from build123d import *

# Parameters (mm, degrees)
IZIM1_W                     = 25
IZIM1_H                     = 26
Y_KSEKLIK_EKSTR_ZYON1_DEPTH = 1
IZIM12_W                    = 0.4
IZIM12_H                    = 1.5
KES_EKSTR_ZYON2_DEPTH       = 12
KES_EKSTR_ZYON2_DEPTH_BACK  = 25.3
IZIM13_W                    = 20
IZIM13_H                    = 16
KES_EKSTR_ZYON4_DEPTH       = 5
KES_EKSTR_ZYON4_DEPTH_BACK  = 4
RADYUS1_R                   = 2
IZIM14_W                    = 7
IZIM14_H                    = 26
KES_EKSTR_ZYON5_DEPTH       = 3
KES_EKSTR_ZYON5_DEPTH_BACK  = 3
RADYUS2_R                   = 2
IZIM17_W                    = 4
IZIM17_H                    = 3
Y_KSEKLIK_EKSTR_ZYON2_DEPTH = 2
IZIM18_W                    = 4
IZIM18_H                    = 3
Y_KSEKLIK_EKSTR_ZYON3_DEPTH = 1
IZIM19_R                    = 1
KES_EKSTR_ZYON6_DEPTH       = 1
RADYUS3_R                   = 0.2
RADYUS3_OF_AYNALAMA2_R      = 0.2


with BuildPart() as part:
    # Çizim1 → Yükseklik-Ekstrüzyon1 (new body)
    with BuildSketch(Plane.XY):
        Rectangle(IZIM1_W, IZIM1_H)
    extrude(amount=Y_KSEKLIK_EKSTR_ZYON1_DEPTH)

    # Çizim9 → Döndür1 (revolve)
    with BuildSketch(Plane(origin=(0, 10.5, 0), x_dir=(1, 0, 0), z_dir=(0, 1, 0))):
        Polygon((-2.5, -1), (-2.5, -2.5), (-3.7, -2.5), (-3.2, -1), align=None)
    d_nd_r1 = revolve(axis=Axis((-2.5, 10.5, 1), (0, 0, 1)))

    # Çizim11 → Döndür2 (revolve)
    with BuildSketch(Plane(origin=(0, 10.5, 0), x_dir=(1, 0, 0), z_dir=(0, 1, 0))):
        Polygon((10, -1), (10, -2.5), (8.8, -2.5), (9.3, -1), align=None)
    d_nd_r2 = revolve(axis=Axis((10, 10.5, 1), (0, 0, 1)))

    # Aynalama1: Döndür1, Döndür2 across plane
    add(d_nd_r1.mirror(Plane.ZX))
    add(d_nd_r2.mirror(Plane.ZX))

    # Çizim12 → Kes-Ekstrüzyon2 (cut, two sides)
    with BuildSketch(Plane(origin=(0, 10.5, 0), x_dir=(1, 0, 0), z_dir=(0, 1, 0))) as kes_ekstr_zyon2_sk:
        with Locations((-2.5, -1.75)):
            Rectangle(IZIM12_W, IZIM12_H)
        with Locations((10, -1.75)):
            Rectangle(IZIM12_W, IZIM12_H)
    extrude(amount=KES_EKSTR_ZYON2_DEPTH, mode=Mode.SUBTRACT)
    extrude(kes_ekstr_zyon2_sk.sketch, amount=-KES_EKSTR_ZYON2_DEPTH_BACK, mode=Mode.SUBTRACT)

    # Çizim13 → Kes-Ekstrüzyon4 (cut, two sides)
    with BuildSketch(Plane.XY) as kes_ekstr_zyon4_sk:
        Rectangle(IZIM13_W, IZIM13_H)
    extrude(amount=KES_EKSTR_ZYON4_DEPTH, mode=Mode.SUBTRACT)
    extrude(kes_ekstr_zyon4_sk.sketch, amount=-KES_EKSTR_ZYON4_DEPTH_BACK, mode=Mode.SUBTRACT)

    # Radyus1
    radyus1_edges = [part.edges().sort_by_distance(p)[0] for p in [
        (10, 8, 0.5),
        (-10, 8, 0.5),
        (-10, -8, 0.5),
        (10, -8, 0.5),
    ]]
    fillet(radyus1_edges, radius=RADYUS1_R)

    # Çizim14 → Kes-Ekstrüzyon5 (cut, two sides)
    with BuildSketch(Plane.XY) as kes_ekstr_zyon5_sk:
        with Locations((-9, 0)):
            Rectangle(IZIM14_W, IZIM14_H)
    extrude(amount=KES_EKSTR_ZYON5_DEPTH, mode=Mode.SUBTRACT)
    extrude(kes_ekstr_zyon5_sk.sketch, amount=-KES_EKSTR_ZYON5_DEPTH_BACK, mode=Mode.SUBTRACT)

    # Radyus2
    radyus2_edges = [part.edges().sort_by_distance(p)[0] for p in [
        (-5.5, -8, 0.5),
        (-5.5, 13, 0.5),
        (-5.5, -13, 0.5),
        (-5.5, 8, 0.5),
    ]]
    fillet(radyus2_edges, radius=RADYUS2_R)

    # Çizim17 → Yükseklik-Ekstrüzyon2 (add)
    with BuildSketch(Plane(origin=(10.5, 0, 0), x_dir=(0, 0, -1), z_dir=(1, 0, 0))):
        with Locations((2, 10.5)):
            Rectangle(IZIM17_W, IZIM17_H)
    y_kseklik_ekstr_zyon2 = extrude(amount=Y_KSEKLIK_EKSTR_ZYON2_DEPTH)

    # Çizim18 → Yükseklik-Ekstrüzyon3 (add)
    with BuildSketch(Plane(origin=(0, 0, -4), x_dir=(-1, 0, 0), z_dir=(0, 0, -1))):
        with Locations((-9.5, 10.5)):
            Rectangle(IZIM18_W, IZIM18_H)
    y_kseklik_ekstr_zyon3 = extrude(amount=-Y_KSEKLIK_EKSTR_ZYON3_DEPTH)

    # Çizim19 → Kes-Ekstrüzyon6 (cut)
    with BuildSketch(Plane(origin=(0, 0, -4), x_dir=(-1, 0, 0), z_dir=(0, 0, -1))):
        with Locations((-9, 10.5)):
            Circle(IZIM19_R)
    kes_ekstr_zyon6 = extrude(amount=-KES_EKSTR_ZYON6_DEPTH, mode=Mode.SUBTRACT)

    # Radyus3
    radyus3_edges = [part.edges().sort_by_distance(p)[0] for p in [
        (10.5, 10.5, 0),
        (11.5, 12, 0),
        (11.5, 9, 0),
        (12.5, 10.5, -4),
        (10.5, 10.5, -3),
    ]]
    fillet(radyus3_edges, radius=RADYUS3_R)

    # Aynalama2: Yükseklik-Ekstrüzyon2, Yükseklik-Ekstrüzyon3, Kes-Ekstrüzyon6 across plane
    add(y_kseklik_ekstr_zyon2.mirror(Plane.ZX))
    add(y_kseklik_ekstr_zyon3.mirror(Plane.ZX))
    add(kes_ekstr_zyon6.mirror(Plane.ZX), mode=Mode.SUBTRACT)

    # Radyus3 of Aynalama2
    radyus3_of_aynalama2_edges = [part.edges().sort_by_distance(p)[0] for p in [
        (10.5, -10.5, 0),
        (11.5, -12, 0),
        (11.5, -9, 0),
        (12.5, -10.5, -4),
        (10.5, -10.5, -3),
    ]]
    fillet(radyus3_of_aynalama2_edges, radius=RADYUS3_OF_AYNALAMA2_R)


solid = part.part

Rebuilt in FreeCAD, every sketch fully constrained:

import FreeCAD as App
import Part
import Sketcher


def edges_at(feature, points):
    """Names of the edges that pass closest to the given points."""
    edges = feature.Shape.Edges
    near = lambda p: min(range(len(edges)), key=lambda i: edges[i].distToShape(Part.Vertex(*p))[0])
    return sorted({f"Edge{near(p) + 1}" for p in points})


def add_polygon(sketch, points):
    """Adds a closed chain of lines whose ends are joined by coincident constraints."""
    first, n = sketch.GeometryCount, len(points)
    for a, b in zip(points, points[1:] + points[:1]):
        sketch.addGeometry(Part.LineSegment(App.Vector(*a, 0), App.Vector(*b, 0)), False)
    for i in range(n):
        sketch.addConstraint(Sketcher.Constraint("Coincident", first + i, 2, first + (i + 1) % n, 1))

doc = App.newDocument("Part")
body = doc.addObject("PartDesign::Body", "Body")

sketch1 = doc.addObject("Sketcher::SketchObject", "Sketch")
body.addObject(sketch1)
sketch1.AttachmentSupport = (doc.XY_Plane, [""])
sketch1.MapMode = "FlatFace"
add_polygon(sketch1, [(-12.5, 13), (-12.5, -13), (12.5, -13), (12.5, 13)])
sketch1.addConstraint([
    Sketcher.Constraint("Vertical", 0),
    Sketcher.Constraint("Horizontal", 1),
    Sketcher.Constraint("Vertical", 2),
    Sketcher.Constraint("Horizontal", 3),
    Sketcher.Constraint("Symmetric", 0, 2, 2, 2, -1, 1),
    Sketcher.Constraint("DistanceX", 1, 1, 1, 2, 25.0),
    Sketcher.Constraint("DistanceY", 0, 2, 0, 1, 26.0),
])
pad1 = doc.addObject("PartDesign::Pad", "Pad")
body.addObject(pad1)
pad1.Profile = sketch1
pad1.Length = 1

sketch2 = doc.addObject("Sketcher::SketchObject", "Sketch001")
body.addObject(sketch2)
sketch2.AttachmentSupport = (doc.XZ_Plane, [""])
sketch2.MapMode = "FlatFace"
sketch2.AttachmentOffset = App.Placement(App.Vector(0, 0, -10.5), App.Rotation())
add_polygon(sketch2, [(-2.5, 2.5), (-2.5, 1), (-3.2, 1), (-3.7, 2.5)])
sketch2.addGeometry(Part.LineSegment(App.Vector(-2.5, 1, 0), App.Vector(-2.5, 2.5, 0)), True)
sketch2.addConstraint([
    Sketcher.Constraint("Vertical", 0),
    Sketcher.Constraint("Horizontal", 1),
    Sketcher.Constraint("Horizontal", 3),
    Sketcher.Constraint("Vertical", 4),
    Sketcher.Constraint("Coincident", 4, 1, 0, 2),
    Sketcher.Constraint("Horizontal", 2, 2, 4, 2),
    Sketcher.Constraint("DistanceX", 1, 2, 1, 1, 0.7),
    Sketcher.Constraint("DistanceX", 3, 1, 3, 2, 1.2),
    Sketcher.Constraint("DistanceY", 0, 2, 0, 1, 1.5),
    Sketcher.Constraint("DistanceY", -1, 1, 0, 2, 1.0),
    Sketcher.Constraint("DistanceX", 0, 2, -1, 1, 2.5),
])
revolution = doc.addObject("PartDesign::Revolution", "Revolution")
body.addObject(revolution)
revolution.Profile = sketch2
revolution.ReferenceAxis = (sketch2, ["Axis0"])
revolution.Angle = 360

sketch3 = doc.addObject("Sketcher::SketchObject", "Sketch002")
body.addObject(sketch3)
sketch3.AttachmentSupport = (doc.XZ_Plane, [""])
sketch3.MapMode = "FlatFace"
sketch3.AttachmentOffset = App.Placement(App.Vector(0, 0, -10.5), App.Rotation())
add_polygon(sketch3, [(10, 2.5), (10, 1), (9.3, 1), (8.8, 2.5)])
sketch3.addGeometry(Part.LineSegment(App.Vector(10, 1, 0), App.Vector(10, 2.5, 0)), True)
sketch3.addConstraint([
    Sketcher.Constraint("Vertical", 0),
    Sketcher.Constraint("Horizontal", 1),
    Sketcher.Constraint("Horizontal", 3),
    Sketcher.Constraint("Vertical", 4),
    Sketcher.Constraint("Coincident", 4, 1, 0, 2),
    Sketcher.Constraint("Horizontal", 2, 2, 4, 2),
    Sketcher.Constraint("DistanceX", 1, 2, 1, 1, 0.7),
    Sketcher.Constraint("DistanceX", 3, 1, 3, 2, 1.2),
    Sketcher.Constraint("DistanceY", 0, 2, 0, 1, 1.5),
    Sketcher.Constraint("DistanceX", -1, 1, 0, 2, 10.0),
    Sketcher.Constraint("DistanceY", -1, 1, 0, 2, 1.0),
])
revolution2 = doc.addObject("PartDesign::Revolution", "Revolution001")
body.addObject(revolution2)
revolution2.Profile = sketch3
revolution2.ReferenceAxis = (sketch3, ["Axis0"])
revolution2.Angle = 360
doc.recompute()

mirrored = doc.addObject("PartDesign::Mirrored", "Mirrored")
body.addObject(mirrored)
mirrored.Originals = [revolution, revolution2]
mirrored.MirrorPlane = (doc.XZ_Plane, [""])
body.Tip = mirrored

sketch4 = doc.addObject("Sketcher::SketchObject", "Sketch003")
body.addObject(sketch4)
sketch4.AttachmentSupport = (doc.XZ_Plane, [""])
sketch4.MapMode = "FlatFace"
sketch4.AttachmentOffset = App.Placement(App.Vector(0, 0, -10.5), App.Rotation())
add_polygon(sketch4, [(-2.7, 1), (-2.7, 2.5), (-2.3, 2.5), (-2.3, 1)])
add_polygon(sketch4, [(9.8, 1), (9.8, 2.5), (10.2, 2.5), (10.2, 1)])
sketch4.addConstraint([
    Sketcher.Constraint("Vertical", 0),
    Sketcher.Constraint("Horizontal", 1),
    Sketcher.Constraint("Vertical", 2),
    Sketcher.Constraint("Horizontal", 3),
    Sketcher.Constraint("Vertical", 4),
    Sketcher.Constraint("Horizontal", 5),
    Sketcher.Constraint("Vertical", 6),
    Sketcher.Constraint("Horizontal", 7),
    Sketcher.Constraint("Horizontal", 1, 2, 4, 2),
    Sketcher.Constraint("Horizontal", 3, 2, 6, 2),
    Sketcher.Constraint("Equal", 3, 5),
    Sketcher.Constraint("DistanceX", 1, 1, 1, 2, 0.4),
    Sketcher.Constraint("DistanceY", 0, 1, 0, 2, 1.5),
    Sketcher.Constraint("DistanceY", -1, 1, 2, 2, 1.0),
    Sketcher.Constraint("DistanceX", 0, 2, -1, 1, 2.7),
    Sketcher.Constraint("DistanceX", -1, 1, 4, 2, 9.8),
])
pocket1 = doc.addObject("PartDesign::Pocket", "Pocket")
body.addObject(pocket1)
pocket1.Profile = sketch4
pocket1.Type = "ThroughAll"
pocket1.Midplane = True

sketch5 = doc.addObject("Sketcher::SketchObject", "Sketch004")
body.addObject(sketch5)
sketch5.AttachmentSupport = (doc.XY_Plane, [""])
sketch5.MapMode = "FlatFace"
add_polygon(sketch5, [(-10, 8), (-10, -8), (10, -8), (10, 8)])
sketch5.addConstraint([
    Sketcher.Constraint("Vertical", 0),
    Sketcher.Constraint("Horizontal", 1),
    Sketcher.Constraint("Vertical", 2),
    Sketcher.Constraint("Horizontal", 3),
    Sketcher.Constraint("Symmetric", 0, 2, 2, 2, -1, 1),
    Sketcher.Constraint("DistanceX", 1, 1, 1, 2, 20.0),
    Sketcher.Constraint("DistanceY", 0, 2, 0, 1, 16.0),
])
pocket2 = doc.addObject("PartDesign::Pocket", "Pocket001")
body.addObject(pocket2)
pocket2.Profile = sketch5
pocket2.Type = "ThroughAll"
pocket2.Midplane = True
doc.recompute()

fillet = doc.addObject("PartDesign::Fillet", "Fillet")
body.addObject(fillet)
fillet.Base = (pocket2, edges_at(pocket2, [
    (10, 8, 0.5),
    (-10, 8, 0.5),
    (-10, -8, 0.5),
    (10, -8, 0.5),
]))
fillet.Radius = 2

sketch6 = doc.addObject("Sketcher::SketchObject", "Sketch005")
body.addObject(sketch6)
sketch6.AttachmentSupport = (doc.XY_Plane, [""])
sketch6.MapMode = "FlatFace"
add_polygon(sketch6, [(-12.5, 13), (-12.5, -13), (-5.5, -13), (-5.5, 13)])
sketch6.addConstraint([
    Sketcher.Constraint("Vertical", 0),
    Sketcher.Constraint("Horizontal", 1),
    Sketcher.Constraint("Vertical", 2),
    Sketcher.Constraint("Horizontal", 3),
    Sketcher.Constraint("DistanceX", 1, 1, 1, 2, 7.0),
    Sketcher.Constraint("DistanceY", 0, 2, 0, 1, 26.0),
    Sketcher.Constraint("DistanceY", 0, 2, -1, 1, 13.0),
    Sketcher.Constraint("DistanceX", 0, 2, -1, 1, 12.5),
])
pocket3 = doc.addObject("PartDesign::Pocket", "Pocket002")
body.addObject(pocket3)
pocket3.Profile = sketch6
pocket3.Type = "ThroughAll"
pocket3.Midplane = True
doc.recompute()

fillet2 = doc.addObject("PartDesign::Fillet", "Fillet001")
body.addObject(fillet2)
fillet2.Base = (pocket3, edges_at(pocket3, [
    (-5.5, -8, 0.5),
    (-5.5, 13, 0.5),
    (-5.5, -13, 0.5),
    (-5.5, 8, 0.5),
]))
fillet2.Radius = 2

sketch7 = doc.addObject("Sketcher::SketchObject", "Sketch006")
body.addObject(sketch7)
sketch7.AttachmentSupport = (doc.YZ_Plane, [""])
sketch7.MapMode = "FlatFace"
sketch7.AttachmentOffset = App.Placement(App.Vector(0, 0, 10.5), App.Rotation())
add_polygon(sketch7, [(12, 0), (9, 0), (9, -4), (12, -4)])
sketch7.addConstraint([
    Sketcher.Constraint("Horizontal", 0),
    Sketcher.Constraint("Vertical", 1),
    Sketcher.Constraint("Horizontal", 2),
    Sketcher.Constraint("Vertical", 3),
    Sketcher.Constraint("PointOnObject", 0, 2, -1),
    Sketcher.Constraint("DistanceX", 0, 2, 0, 1, 3.0),
    Sketcher.Constraint("DistanceY", 1, 2, 1, 1, 4.0),
    Sketcher.Constraint("DistanceX", -1, 1, 0, 2, 9.0),
])
pad2 = doc.addObject("PartDesign::Pad", "Pad001")
body.addObject(pad2)
pad2.Profile = sketch7
pad2.Length = 2

sketch8 = doc.addObject("Sketcher::SketchObject", "Sketch007")
body.addObject(sketch8)
sketch8.AttachmentSupport = (doc.XY_Plane, [""])
sketch8.MapMode = "FlatFace"
sketch8.AttachmentOffset = App.Placement(App.Vector(0, 0, -4), App.Rotation())
add_polygon(sketch8, [(11.5, 12), (11.5, 9), (7.5, 9), (7.5, 12)])
sketch8.addConstraint([
    Sketcher.Constraint("Vertical", 0),
    Sketcher.Constraint("Horizontal", 1),
    Sketcher.Constraint("Vertical", 2),
    Sketcher.Constraint("Horizontal", 3),
    Sketcher.Constraint("DistanceX", 1, 2, 1, 1, 4.0),
    Sketcher.Constraint("DistanceY", 0, 2, 0, 1, 3.0),
    Sketcher.Constraint("DistanceY", -1, 1, 0, 2, 9.0),
    Sketcher.Constraint("DistanceX", -1, 1, 0, 2, 11.5),
])
pad3 = doc.addObject("PartDesign::Pad", "Pad002")
body.addObject(pad3)
pad3.Profile = sketch8
pad3.Length = 1

sketch9 = doc.addObject("Sketcher::SketchObject", "Sketch008")
body.addObject(sketch9)
sketch9.AttachmentSupport = (doc.XY_Plane, [""])
sketch9.MapMode = "FlatFace"
sketch9.AttachmentOffset = App.Placement(App.Vector(0, 0, -4), App.Rotation())
sketch9.addGeometry(Part.Circle(App.Vector(9, 10.5, 0), App.Vector(0, 0, 1), 1), False)
sketch9.addConstraint([
    Sketcher.Constraint("Diameter", 0, 2.0),
    Sketcher.Constraint("DistanceX", -1, 1, 0, 3, 9.0),
    Sketcher.Constraint("DistanceY", -1, 1, 0, 3, 10.5),
])
pocket4 = doc.addObject("PartDesign::Pocket", "Pocket003")
body.addObject(pocket4)
pocket4.Profile = sketch9
pocket4.Length = 1
pocket4.Reversed = True
doc.recompute()

fillet3 = doc.addObject("PartDesign::Fillet", "Fillet002")
body.addObject(fillet3)
fillet3.Base = (pocket4, edges_at(pocket4, [
    (10.5, 10.5, 0),
    (11.5, 12, 0),
    (11.5, 9, 0),
    (12.5, 10.5, -4),
    (10.5, 10.5, -3),
]))
fillet3.Radius = 0.2
doc.recompute()

mirrored2 = doc.addObject("PartDesign::Mirrored", "Mirrored001")
body.addObject(mirrored2)
mirrored2.Originals = [pad2, pad3, pocket4]
mirrored2.MirrorPlane = (doc.XZ_Plane, [""])
body.Tip = mirrored2
doc.recompute()

fillet4 = doc.addObject("PartDesign::Fillet", "Fillet003")
body.addObject(fillet4)
fillet4.Base = (mirrored2, edges_at(mirrored2, [
    (10.5, -10.5, 0),
    (11.5, -12, 0),
    (11.5, -9, 0),
    (12.5, -10.5, -4),
    (10.5, -10.5, -3),
]))
fillet4.Radius = 0.2

doc.recompute()
